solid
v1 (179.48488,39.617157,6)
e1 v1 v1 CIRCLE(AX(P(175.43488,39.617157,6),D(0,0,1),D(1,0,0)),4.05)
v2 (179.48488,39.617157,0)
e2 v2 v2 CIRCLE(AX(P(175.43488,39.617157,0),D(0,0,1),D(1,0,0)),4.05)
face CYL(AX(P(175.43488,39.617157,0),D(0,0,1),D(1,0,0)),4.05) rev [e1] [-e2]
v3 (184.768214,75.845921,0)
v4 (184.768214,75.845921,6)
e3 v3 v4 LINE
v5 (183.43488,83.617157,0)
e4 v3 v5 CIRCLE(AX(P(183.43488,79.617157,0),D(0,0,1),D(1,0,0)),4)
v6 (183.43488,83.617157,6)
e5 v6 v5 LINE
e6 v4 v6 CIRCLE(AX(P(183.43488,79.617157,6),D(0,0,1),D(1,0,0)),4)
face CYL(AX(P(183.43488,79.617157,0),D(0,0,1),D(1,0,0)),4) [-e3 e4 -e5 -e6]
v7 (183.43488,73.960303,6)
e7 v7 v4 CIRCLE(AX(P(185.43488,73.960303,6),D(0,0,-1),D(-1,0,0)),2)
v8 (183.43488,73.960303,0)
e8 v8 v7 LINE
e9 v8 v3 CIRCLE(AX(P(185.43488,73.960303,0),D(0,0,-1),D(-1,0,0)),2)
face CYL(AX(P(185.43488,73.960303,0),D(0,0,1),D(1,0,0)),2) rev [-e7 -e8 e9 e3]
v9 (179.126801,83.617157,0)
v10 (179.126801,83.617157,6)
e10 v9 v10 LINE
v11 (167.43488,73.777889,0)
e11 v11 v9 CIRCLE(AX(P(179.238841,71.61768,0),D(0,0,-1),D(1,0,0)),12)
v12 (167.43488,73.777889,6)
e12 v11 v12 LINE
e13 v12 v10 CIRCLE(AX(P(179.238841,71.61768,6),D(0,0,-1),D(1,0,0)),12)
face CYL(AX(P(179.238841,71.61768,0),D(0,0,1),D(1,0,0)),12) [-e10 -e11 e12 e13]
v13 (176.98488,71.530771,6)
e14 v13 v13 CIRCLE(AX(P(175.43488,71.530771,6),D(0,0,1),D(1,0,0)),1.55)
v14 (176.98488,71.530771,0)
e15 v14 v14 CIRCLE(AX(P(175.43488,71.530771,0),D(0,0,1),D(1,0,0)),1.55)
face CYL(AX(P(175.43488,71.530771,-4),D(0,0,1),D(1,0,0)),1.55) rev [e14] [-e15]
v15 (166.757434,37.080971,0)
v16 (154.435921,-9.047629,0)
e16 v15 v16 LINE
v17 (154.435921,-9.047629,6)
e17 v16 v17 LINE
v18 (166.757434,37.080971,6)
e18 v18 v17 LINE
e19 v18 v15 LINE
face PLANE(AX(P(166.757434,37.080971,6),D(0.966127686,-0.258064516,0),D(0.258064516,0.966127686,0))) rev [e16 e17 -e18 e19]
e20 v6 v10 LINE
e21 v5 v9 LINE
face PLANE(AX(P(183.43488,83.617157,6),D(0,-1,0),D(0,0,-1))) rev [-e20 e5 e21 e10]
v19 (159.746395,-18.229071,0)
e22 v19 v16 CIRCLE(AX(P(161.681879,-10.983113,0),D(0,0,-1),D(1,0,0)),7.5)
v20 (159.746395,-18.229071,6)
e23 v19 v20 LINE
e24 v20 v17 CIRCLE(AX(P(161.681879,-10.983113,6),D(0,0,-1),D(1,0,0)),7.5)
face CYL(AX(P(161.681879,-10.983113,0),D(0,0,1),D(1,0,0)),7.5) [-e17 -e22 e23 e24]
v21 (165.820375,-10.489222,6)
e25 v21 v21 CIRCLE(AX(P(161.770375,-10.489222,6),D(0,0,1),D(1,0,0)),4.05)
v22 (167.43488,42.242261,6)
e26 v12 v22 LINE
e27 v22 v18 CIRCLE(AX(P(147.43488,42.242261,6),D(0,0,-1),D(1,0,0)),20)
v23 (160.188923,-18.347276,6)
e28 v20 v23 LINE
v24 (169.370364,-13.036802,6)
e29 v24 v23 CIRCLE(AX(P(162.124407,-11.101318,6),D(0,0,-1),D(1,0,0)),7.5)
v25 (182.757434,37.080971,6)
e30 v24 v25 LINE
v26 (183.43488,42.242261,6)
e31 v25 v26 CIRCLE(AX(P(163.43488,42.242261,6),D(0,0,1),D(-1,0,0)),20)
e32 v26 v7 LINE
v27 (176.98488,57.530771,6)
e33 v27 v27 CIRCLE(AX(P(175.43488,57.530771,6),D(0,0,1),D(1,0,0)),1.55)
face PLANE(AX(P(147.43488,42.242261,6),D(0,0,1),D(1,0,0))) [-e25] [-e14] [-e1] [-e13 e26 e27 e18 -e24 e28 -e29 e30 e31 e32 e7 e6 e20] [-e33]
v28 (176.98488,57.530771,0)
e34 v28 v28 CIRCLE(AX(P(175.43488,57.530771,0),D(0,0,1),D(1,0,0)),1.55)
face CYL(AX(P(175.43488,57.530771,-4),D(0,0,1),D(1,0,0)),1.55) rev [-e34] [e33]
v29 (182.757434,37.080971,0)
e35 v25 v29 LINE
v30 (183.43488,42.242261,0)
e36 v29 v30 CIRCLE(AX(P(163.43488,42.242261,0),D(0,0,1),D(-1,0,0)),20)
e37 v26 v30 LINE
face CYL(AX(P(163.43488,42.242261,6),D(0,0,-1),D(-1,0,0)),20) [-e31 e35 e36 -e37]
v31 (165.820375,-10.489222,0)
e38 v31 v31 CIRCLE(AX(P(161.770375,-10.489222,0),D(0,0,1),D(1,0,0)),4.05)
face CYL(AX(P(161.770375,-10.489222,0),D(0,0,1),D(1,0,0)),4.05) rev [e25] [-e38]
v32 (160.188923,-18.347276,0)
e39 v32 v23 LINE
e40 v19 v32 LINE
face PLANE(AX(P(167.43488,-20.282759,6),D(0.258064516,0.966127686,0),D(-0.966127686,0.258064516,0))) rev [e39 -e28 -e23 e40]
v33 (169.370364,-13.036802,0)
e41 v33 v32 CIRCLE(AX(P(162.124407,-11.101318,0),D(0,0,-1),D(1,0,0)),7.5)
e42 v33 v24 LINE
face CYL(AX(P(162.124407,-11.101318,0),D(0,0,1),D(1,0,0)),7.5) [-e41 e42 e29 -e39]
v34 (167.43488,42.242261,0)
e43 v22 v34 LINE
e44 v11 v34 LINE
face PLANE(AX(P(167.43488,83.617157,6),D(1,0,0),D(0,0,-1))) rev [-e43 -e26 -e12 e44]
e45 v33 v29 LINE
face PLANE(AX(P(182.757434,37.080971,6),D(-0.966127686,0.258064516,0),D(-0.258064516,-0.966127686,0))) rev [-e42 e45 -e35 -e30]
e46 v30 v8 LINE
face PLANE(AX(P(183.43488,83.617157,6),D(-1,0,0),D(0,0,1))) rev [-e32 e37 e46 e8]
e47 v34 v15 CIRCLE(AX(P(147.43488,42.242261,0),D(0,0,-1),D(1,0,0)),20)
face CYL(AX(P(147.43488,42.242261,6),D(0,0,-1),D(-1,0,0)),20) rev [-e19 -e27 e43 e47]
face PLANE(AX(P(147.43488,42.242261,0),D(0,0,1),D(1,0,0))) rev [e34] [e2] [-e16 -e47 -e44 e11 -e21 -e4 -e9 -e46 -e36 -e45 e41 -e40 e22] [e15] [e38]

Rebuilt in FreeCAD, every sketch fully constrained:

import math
import FreeCAD as App
import Part
import Sketcher

doc = App.newDocument("Part")
params = doc.addObject("Spreadsheet::Sheet", "Params")
for row, (alias, value) in enumerate([
    ("sketch1_radius", "20 mm"),
    ("sketch1_width", "16 mm"),
    ("pad1_length", "6 mm"),
    ("sketch2_diameter", "8.1 mm"),
    ("pocket1_length", "6 mm"),
    ("sketch3_diameter", "8.1 mm"),
    ("pocket2_length", "6 mm"),
    ("sketch4_radius", "12 mm"),
    ("pocket3_length", "6 mm"),
    ("sketch5_diameter", "8 mm"),
    ("pad2_length", "6 mm"),
    ("sketch6_diameter", "3.1 mm"),
    ("pocket4_length", "10 mm"),
    ("sketch7_radius", "2 mm"),
    ("pad3_length", "6 mm"),
    ("sketch8_radius", "7.5 mm"),
    ("pocket5_length", "6 mm"),
], start=1):
    params.set(f"A{row}", alias)
    params.set(f"B{row}", "=" + value)
    params.setAlias(f"B{row}", alias)

body = doc.addObject("PartDesign::Body", "Body")

# Sketch on XY plane
sketch1 = body.newObject("Sketcher::SketchObject", "Sketch")
sketch1.AttachmentSupport = (doc.getObject("XY_Plane"), [""])
sketch1.MapMode = "FlatFace"
sketch1.addGeometry([
    Part.LineSegment(App.Vector(183.43488, 42.242261, 0), App.Vector(183.43488, 83.617157, 0)),  # 0
    Part.LineSegment(App.Vector(183.43488, 83.617157, 0), App.Vector(167.43488, 83.617157, 0)),  # 1
    Part.LineSegment(App.Vector(167.43488, 83.617157, 0), App.Vector(167.43488, 42.242261, 0)),  # 2
    Part.ArcOfCircle(Part.Circle(App.Vector(147.43488, 42.242261, 0), App.Vector(0, 0, 1), 20), math.radians(-14.955248), math.radians(0)),  # 3
    Part.LineSegment(App.Vector(166.757434, 37.080971, 0), App.Vector(152.500437, -16.293587, 0)),  # 4
    Part.LineSegment(App.Vector(152.500437, -16.293587, 0), App.Vector(167.43488, -20.282759, 0)),  # 5
    Part.LineSegment(App.Vector(167.43488, -20.282759, 0), App.Vector(182.757434, 37.080971, 0)),  # 6
    Part.ArcOfCircle(Part.Circle(App.Vector(163.43488, 42.242261, 0), App.Vector(0, 0, 1), 20), math.radians(-14.955248), math.radians(0)),  # 7
], False)
sketch1.addConstraint([
    Sketcher.Constraint("Coincident", 0, 2, 1, 1),
    Sketcher.Constraint("Coincident", 1, 2, 2, 1),
    Sketcher.Constraint("Tangent", 2, 2, 3, 2),
    Sketcher.Constraint("Tangent", 3, 1, 4, 1),
    Sketcher.Constraint("Coincident", 4, 2, 5, 1),
    Sketcher.Constraint("Coincident", 5, 2, 6, 1),
    Sketcher.Constraint("Tangent", 6, 2, 7, 1),
    Sketcher.Constraint("Tangent", 7, 2, 0, 1),
    Sketcher.Constraint("Vertical", 0),
    Sketcher.Constraint("Horizontal", 1),
    Sketcher.Constraint("Vertical", 2),
    Sketcher.Constraint("Equal", 3, 7),
    Sketcher.Constraint("Perpendicular", 4, 5),
    Sketcher.Constraint("Perpendicular", 5, 6),
    Sketcher.Constraint("Horizontal", 3, 3, 7, 3),
    Sketcher.Constraint("Vertical", 2, 2, 5, 2),
    Sketcher.Constraint("Radius", 3, 20.0),
    Sketcher.Constraint("DistanceX", 1, 2, 1, 1, 16.0),
    Sketcher.Constraint("DistanceY", 0, 1, 0, 2, 41.374896),
    Sketcher.Constraint("DistanceX", -1, 1, 3, 3, 147.43488),
    Sketcher.Constraint("DistanceY", -1, 1, 3, 3, 42.242261),
    Sketcher.Constraint("DistanceY", -1, 1, 3, 1, 37.080971),
])
sketch1.setExpression("Constraints[16]", "Params.sketch1_radius")
sketch1.setExpression("Constraints[17]", "Params.sketch1_width")
pad1 = body.newObject("PartDesign::Pad", "Pad")
pad1.Profile = sketch1
pad1.setExpression("Length", "Params.pad1_length")

# Sketch on XY plane
sketch2 = body.newObject("Sketcher::SketchObject", "Sketch001")
sketch2.AttachmentSupport = (doc.getObject("XY_Plane"), [""])
sketch2.MapMode = "FlatFace"
sketch2.AttachmentOffset = App.Placement(App.Vector(0, 0, 6), App.Rotation())
sketch2.addGeometry([
    Part.Circle(App.Vector(175.43488, 39.617157, 0), App.Vector(0, 0, 1), 4.05),
    Part.Circle(App.Vector(175.43488, -14.382843, 0), App.Vector(0, 0, 1), 4.05),
], False)
sketch2.addConstraint([
    Sketcher.Constraint("Equal", 0, 1),
    Sketcher.Constraint("Vertical", 0, 3, 1, 3),
    Sketcher.Constraint("Diameter", 0, 8.1),
    Sketcher.Constraint("DistanceY", 1, 3, 0, 3, 54.0),
    Sketcher.Constraint("DistanceX", -1, 1, 0, 3, 175.43488),
    Sketcher.Constraint("DistanceY", -1, 1, 0, 3, 39.617157),
])
sketch2.setExpression("Constraints[2]", "Params.sketch2_diameter")
pocket1 = body.newObject("PartDesign::Pocket", "Pocket")
pocket1.Profile = sketch2
pocket1.setExpression("Length", "Params.pocket1_length")

# Sketch on XY plane
sketch3 = body.newObject("Sketcher::SketchObject", "Sketch002")
sketch3.AttachmentSupport = (doc.getObject("XY_Plane"), [""])
sketch3.MapMode = "FlatFace"
sketch3.AttachmentOffset = App.Placement(App.Vector(0, 0, 6), App.Rotation())
sketch3.addGeometry(Part.Circle(App.Vector(161.770375, -10.489222, 0), App.Vector(0, 0, 1), 4.05), False)
sketch3.addConstraint([
    Sketcher.Constraint("Diameter", 0, 8.1),
    Sketcher.Constraint("DistanceY", 0, 3, -1, 1, 10.489222),
    Sketcher.Constraint("DistanceX", -1, 1, 0, 3, 161.770375),
])
sketch3.setExpression("Constraints[0]", "Params.sketch3_diameter")
pocket2 = body.newObject("PartDesign::Pocket", "Pocket001")
pocket2.Profile = sketch3
pocket2.setExpression("Length", "Params.pocket2_length")

# Sketch on XY plane
sketch4 = body.newObject("Sketcher::SketchObject", "Sketch003")
sketch4.AttachmentSupport = (doc.getObject("XY_Plane"), [""])
sketch4.MapMode = "FlatFace"
sketch4.AttachmentOffset = App.Placement(App.Vector(0, 0, 6), App.Rotation())
sketch4.addGeometry([
    Part.LineSegment(App.Vector(167.43488, 83.617157, 0), App.Vector(167.43488, 73.777889, 0)),
    Part.ArcOfCircle(Part.Circle(App.Vector(179.238841, 71.61768, 0), App.Vector(0, 0, 1), 12), math.radians(90.534961), math.radians(169.629226)),
    Part.LineSegment(App.Vector(179.126801, 83.617157, 0), App.Vector(167.43488, 83.617157, 0)),
], False)
sketch4.addConstraint([
    Sketcher.Constraint("Coincident", 0, 2, 1, 2),
    Sketcher.Constraint("Coincident", 1, 1, 2, 1),
    Sketcher.Constraint("Coincident", 2, 2, 0, 1),
    Sketcher.Constraint("Vertical", 0),
    Sketcher.Constraint("Horizontal", 2),
    Sketcher.Constraint("Radius", 1, 12.0),
    Sketcher.Constraint("DistanceX", 2, 2, 2, 1, 11.691921),
    Sketcher.Constraint("DistanceX", -1, 1, 1, 1, 179.126801),
    Sketcher.Constraint("DistanceY", 0, 2, 0, 1, 9.839268),
    Sketcher.Constraint("DistanceY", -1, 1, 1, 3, 71.61768),
])
sketch4.setExpression("Constraints[5]", "Params.sketch4_radius")
pocket3 = body.newObject("PartDesign::Pocket", "Pocket002")
pocket3.Profile = sketch4
pocket3.setExpression("Length", "Params.pocket3_length")

# Sketch on XY plane
sketch5 = body.newObject("Sketcher::SketchObject", "Sketch004")
sketch5.AttachmentSupport = (doc.getObject("XY_Plane"), [""])
sketch5.MapMode = "FlatFace"
sketch5.AttachmentOffset = App.Placement(App.Vector(0, 0, 6), App.Rotation())
sketch5.addGeometry(Part.Circle(App.Vector(183.43488, 79.617157, 0), App.Vector(0, 0, 1), 4), False)
sketch5.addConstraint([
    Sketcher.Constraint("Diameter", 0, 8.0),
    Sketcher.Constraint("DistanceX", -1, 1, 0, 3, 183.43488),
    Sketcher.Constraint("DistanceY", -1, 1, 0, 3, 79.617157),
])
sketch5.setExpression("Constraints[0]", "Params.sketch5_diameter")
pad2 = body.newObject("PartDesign::Pad", "Pad001")
pad2.Profile = sketch5
pad2.setExpression("Length", "Params.pad2_length")
pad2.Reversed = True

# Sketch on XY plane
sketch6 = body.newObject("Sketcher::SketchObject", "Sketch005")
sketch6.AttachmentSupport = (doc.getObject("XY_Plane"), [""])
sketch6.MapMode = "FlatFace"
sketch6.AttachmentOffset = App.Placement(App.Vector(0, 0, 6), App.Rotation())
sketch6.addGeometry([
    Part.Circle(App.Vector(175.43488, 57.530771, 0), App.Vector(0, 0, 1), 1.55),
    Part.Circle(App.Vector(175.43488, 71.530771, 0), App.Vector(0, 0, 1), 1.55),
], False)
sketch6.addConstraint([
    Sketcher.Constraint("Equal", 0, 1),
    Sketcher.Constraint("Vertical", 0, 3, 1, 3),
    Sketcher.Constraint("Diameter", 0, 3.1),
    Sketcher.Constraint("DistanceY", 0, 3, 1, 3, 14.0),
    Sketcher.Constraint("DistanceX", -1, 1, 0, 3, 175.43488),
    Sketcher.Constraint("DistanceY", -1, 1, 0, 3, 57.530771),
])
sketch6.setExpression("Constraints[2]", "Params.sketch6_diameter")
pocket4 = body.newObject("PartDesign::Pocket", "Pocket003")
pocket4.Profile = sketch6
pocket4.setExpression("Length", "Params.pocket4_length")

# Sketch on XY plane
sketch7 = body.newObject("Sketcher::SketchObject", "Sketch006")
sketch7.AttachmentSupport = (doc.getObject("XY_Plane"), [""])
sketch7.MapMode = "FlatFace"
sketch7.AttachmentOffset = App.Placement(App.Vector(0, 0, 6), App.Rotation())
sketch7.addGeometry([
    Part.LineSegment(App.Vector(184.768214, 75.845921, 0), App.Vector(183.019134, 76.038564, 0)),
    Part.LineSegment(App.Vector(183.019134, 76.038564, 0), App.Vector(183.43488, 73.960303, 0)),
    Part.ArcOfCircle(Part.Circle(App.Vector(185.43488, 73.960303, 0), App.Vector(0, 0, 1), 2), math.radians(109.471221), math.radians(180)),
], False)
sketch7.addConstraint([
    Sketcher.Constraint("Coincident", 0, 2, 1, 1),
    Sketcher.Constraint("Coincident", 1, 2, 2, 2),
    Sketcher.Constraint("Coincident", 2, 1, 0, 1),
    Sketcher.Constraint("Horizontal", 2, 3, 1, 2),
    Sketcher.Constraint("Radius", 2, 2.0),
    Sketcher.Constraint("DistanceX", -1, 1, 2, 3, 185.43488),
    Sketcher.Constraint("DistanceY", -1, 1, 2, 1, 75.845921),
    Sketcher.Constraint("DistanceY", 2, 3, 0, 2, 2.078262),
    Sketcher.Constraint("DistanceX", 0, 2, 2, 1, 1.74908),
    Sketcher.Constraint("DistanceY", 2, 3, 2, 1, 1.885618),
])
sketch7.setExpression("Constraints[4]", "Params.sketch7_radius")
pad3 = body.newObject("PartDesign::Pad", "Pad002")
pad3.Profile = sketch7
pad3.setExpression("Length", "Params.pad3_length")
pad3.Reversed = True

# Sketch on XY plane
sketch8 = body.newObject("Sketcher::SketchObject", "Sketch007")
sketch8.AttachmentSupport = (doc.getObject("XY_Plane"), [""])
sketch8.MapMode = "FlatFace"
sketch8.AttachmentOffset = App.Placement(App.Vector(0, 0, 6), App.Rotation())
sketch8.addGeometry([
    Part.LineSegment(App.Vector(167.43488, -20.282759, 0), App.Vector(169.370364, -13.036802, 0)),  # 0
    Part.ArcOfCircle(Part.Circle(App.Vector(162.124407, -11.101318, 0), App.Vector(0, 0, 1), 7.5), math.radians(-104.955248), math.radians(-14.955248)),  # 1
    Part.LineSegment(App.Vector(160.188923, -18.347276, 0), App.Vector(167.43488, -20.282759, 0)),  # 2
    Part.LineSegment(App.Vector(154.435921, -9.047629, 0), App.Vector(152.500437, -16.293587, 0)),  # 3
    Part.LineSegment(App.Vector(152.500437, -16.293587, 0), App.Vector(159.746395, -18.229071, 0)),  # 4
    Part.ArcOfCircle(Part.Circle(App.Vector(161.681879, -10.983113, 0), App.Vector(0, 0, 1), 7.5), math.radians(165.044752), math.radians(255.044752)),  # 5
], False)
sketch8.addConstraint([
    Sketcher.Constraint("Tangent", 0, 2, 1, 2),
    Sketcher.Constraint("Tangent", 1, 1, 2, 1),
    Sketcher.Constraint("Coincident", 2, 2, 0, 1),
    Sketcher.Constraint("Coincident", 3, 2, 4, 1),
    Sketcher.Constraint("Tangent", 4, 2, 5, 2),
    Sketcher.Constraint("Tangent", 5, 1, 3, 1),
    Sketcher.Constraint("Equal", 1, 5),
    Sketcher.Constraint("Perpendicular", 0, 2),
    Sketcher.Constraint("Perpendicular", 2, 3),
    Sketcher.Constraint("Perpendicular", 3, 4),
    Sketcher.Constraint("Radius", 1, 7.5),
    Sketcher.Constraint("DistanceX", 5, 3, 2, 2, 5.753002),
    Sketcher.Constraint("DistanceY", 0, 2, -1, 1, 13.036802),
    Sketcher.Constraint("DistanceX", -1, 1, 5, 3, 161.681879),
    Sketcher.Constraint("DistanceY", 2, 2, -1, 1, 20.282759),
    Sketcher.Constraint("DistanceY", 4, 2, -1, 1, 18.229071),
])
sketch8.setExpression("Constraints[10]", "Params.sketch8_radius")
pocket5 = body.newObject("PartDesign::Pocket", "Pocket004")
pocket5.Profile = sketch8
pocket5.setExpression("Length", "Params.pocket5_length")

doc.recompute()
